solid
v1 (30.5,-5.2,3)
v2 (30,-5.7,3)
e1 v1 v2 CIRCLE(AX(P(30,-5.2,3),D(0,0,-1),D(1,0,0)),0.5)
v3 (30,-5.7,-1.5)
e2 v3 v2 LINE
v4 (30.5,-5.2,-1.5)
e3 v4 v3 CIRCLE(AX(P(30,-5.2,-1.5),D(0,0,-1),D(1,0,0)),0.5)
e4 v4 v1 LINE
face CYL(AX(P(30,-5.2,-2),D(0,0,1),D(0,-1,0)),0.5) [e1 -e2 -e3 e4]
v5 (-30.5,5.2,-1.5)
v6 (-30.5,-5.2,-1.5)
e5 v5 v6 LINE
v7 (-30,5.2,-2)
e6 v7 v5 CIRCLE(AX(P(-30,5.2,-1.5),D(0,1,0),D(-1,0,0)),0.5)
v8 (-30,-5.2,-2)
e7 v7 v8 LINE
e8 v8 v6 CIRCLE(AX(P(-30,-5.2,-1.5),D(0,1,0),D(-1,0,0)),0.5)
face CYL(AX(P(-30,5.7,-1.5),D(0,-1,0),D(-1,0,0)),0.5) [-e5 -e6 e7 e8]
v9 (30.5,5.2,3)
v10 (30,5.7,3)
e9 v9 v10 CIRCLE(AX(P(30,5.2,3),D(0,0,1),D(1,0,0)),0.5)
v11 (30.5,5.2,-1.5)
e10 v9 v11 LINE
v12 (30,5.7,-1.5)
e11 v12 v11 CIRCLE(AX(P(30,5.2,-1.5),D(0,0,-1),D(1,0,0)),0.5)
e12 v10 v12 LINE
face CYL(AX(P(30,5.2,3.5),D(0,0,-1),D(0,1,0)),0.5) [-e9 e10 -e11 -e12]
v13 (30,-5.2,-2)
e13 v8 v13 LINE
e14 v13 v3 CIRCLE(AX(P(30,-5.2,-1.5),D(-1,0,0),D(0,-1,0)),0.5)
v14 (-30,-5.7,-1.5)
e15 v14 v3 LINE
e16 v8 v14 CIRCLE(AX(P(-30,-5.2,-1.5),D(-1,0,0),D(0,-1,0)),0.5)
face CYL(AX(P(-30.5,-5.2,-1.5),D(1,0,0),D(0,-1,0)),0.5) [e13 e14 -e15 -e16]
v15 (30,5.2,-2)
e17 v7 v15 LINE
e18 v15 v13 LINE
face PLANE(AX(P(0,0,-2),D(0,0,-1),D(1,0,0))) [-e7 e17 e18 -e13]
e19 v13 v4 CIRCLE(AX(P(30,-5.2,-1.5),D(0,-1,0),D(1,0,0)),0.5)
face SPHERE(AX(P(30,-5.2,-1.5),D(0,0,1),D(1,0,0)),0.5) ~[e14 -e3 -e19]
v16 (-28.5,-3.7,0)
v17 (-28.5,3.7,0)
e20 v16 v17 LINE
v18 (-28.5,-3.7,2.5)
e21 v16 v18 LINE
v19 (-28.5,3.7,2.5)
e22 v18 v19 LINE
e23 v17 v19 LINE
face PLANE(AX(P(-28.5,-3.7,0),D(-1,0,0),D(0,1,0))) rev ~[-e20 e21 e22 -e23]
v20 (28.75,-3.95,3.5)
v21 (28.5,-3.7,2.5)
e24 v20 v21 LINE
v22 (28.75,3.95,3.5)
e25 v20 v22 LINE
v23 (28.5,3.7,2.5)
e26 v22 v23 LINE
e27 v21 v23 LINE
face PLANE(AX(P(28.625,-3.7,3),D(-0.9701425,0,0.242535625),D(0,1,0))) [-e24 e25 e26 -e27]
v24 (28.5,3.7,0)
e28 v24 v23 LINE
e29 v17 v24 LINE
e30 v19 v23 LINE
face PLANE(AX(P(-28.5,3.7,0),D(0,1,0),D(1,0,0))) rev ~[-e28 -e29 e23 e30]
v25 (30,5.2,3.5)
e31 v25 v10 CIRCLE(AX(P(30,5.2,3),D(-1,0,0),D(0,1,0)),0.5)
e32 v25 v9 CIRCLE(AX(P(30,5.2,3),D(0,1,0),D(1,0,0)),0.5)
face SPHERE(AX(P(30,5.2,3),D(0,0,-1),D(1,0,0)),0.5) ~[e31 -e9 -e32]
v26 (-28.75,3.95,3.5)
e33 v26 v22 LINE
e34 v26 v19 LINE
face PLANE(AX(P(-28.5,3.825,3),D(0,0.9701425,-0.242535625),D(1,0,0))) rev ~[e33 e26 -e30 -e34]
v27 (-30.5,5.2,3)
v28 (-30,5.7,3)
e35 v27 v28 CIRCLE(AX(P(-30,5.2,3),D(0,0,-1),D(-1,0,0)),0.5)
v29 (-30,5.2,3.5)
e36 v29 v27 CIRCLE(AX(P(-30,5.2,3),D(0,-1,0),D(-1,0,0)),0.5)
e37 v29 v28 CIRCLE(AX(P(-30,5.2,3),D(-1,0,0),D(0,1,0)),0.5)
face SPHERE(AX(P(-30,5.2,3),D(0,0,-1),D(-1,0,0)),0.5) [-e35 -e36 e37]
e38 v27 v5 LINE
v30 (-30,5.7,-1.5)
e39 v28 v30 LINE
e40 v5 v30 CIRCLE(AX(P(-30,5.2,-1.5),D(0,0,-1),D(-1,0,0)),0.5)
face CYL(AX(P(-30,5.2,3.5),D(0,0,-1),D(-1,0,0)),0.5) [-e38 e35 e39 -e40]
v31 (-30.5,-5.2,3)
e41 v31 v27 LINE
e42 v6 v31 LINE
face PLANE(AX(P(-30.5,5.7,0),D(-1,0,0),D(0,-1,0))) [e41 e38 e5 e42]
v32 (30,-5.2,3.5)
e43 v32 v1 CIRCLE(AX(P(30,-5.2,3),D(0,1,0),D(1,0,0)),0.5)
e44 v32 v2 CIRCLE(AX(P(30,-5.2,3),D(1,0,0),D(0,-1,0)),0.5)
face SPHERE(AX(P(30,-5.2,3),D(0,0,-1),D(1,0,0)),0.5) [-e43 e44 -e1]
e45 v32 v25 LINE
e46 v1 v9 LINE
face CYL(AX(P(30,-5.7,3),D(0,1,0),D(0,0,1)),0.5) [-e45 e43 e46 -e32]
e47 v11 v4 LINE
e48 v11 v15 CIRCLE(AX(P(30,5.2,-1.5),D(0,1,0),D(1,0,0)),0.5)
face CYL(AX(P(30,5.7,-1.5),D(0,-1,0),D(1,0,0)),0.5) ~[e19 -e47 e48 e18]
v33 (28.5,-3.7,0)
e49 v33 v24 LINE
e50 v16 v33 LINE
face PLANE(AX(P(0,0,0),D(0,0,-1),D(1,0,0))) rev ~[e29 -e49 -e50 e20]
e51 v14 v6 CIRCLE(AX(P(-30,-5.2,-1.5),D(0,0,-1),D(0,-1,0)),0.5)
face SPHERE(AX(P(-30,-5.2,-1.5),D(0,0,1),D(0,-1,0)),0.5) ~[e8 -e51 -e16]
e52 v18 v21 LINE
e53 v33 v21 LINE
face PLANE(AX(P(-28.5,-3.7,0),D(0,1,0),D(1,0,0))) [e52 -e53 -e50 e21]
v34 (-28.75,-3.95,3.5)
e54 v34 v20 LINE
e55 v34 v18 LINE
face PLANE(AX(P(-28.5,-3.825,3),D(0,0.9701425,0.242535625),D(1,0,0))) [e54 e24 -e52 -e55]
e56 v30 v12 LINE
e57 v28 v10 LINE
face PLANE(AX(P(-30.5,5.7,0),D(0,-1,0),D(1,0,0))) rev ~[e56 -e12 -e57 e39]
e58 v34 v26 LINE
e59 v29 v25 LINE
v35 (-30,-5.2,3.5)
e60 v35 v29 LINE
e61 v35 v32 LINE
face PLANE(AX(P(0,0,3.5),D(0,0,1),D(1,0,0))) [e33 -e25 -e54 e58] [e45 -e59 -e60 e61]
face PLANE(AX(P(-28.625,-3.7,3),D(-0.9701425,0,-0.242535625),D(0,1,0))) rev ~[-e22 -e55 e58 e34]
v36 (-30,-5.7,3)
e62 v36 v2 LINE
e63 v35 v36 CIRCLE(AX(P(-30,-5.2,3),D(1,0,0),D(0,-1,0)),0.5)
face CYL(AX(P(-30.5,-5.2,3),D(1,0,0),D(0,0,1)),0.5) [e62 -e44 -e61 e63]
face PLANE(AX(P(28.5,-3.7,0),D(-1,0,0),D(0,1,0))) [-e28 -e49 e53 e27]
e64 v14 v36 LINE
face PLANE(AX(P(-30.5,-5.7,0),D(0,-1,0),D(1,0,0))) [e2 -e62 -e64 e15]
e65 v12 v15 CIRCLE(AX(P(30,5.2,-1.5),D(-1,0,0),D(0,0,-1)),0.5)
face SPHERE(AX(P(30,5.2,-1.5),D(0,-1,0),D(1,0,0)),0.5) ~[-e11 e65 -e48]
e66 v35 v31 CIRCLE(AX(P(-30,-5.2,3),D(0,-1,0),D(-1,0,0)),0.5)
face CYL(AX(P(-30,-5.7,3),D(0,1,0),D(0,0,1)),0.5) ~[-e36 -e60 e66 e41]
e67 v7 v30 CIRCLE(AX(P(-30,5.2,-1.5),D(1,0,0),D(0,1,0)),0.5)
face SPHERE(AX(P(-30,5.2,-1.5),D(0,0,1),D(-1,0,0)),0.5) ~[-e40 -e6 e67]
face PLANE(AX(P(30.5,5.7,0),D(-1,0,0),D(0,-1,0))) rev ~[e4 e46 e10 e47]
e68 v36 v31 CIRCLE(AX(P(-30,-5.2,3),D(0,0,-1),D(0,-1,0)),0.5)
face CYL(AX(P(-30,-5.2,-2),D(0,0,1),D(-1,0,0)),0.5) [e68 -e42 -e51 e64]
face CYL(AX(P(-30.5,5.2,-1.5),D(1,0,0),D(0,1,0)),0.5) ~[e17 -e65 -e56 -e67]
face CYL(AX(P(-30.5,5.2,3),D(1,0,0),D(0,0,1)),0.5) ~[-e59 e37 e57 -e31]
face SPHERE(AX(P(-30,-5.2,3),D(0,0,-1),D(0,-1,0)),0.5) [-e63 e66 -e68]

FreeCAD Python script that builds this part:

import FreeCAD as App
import Part
import Sketcher

V = App.Vector


def edges_at(feature, points):
    """Names of the edges that pass closest to the given points."""
    edges = feature.Shape.Edges
    near = lambda p: min(range(len(edges)), key=lambda i: edges[i].distToShape(Part.Vertex(*p))[0])
    return sorted({f"Edge{near(p) + 1}" for p in points})

doc = App.newDocument("Part")
body = doc.addObject("PartDesign::Body", "Body")

# Sketch on XY plane
sketch1 = doc.addObject("Sketcher::SketchObject", "Sketch")
body.addObject(sketch1)
sketch1.AttachmentSupport = (doc.XY_Plane, [""])
sketch1.MapMode = "FlatFace"
sketch1.addGeometry(Part.LineSegment(V(-30.5, 5.7, 0), V(-30.5, -5.7, 0)), False)
sketch1.addGeometry(Part.LineSegment(V(-30.5, -5.7, 0), V(30.5, -5.7, 0)), False)
sketch1.addGeometry(Part.LineSegment(V(30.5, -5.7, 0), V(30.5, 5.7, 0)), False)
sketch1.addGeometry(Part.LineSegment(V(30.5, 5.7, 0), V(-30.5, 5.7, 0)), False)
sketch1.addGeometry(Part.LineSegment(V(28.5, -3.7, 0), V(-28.5, -3.7, 0)), False)
sketch1.addGeometry(Part.LineSegment(V(-28.5, -3.7, 0), V(-28.5, 3.7, 0)), False)
sketch1.addGeometry(Part.LineSegment(V(-28.5, 3.7, 0), V(28.5, 3.7, 0)), False)
sketch1.addGeometry(Part.LineSegment(V(28.5, 3.7, 0), V(28.5, -3.7, 0)), False)
sketch1.addConstraint(Sketcher.Constraint("Coincident", 0, 2, 1, 1))
sketch1.addConstraint(Sketcher.Constraint("Coincident", 1, 2, 2, 1))
sketch1.addConstraint(Sketcher.Constraint("Coincident", 2, 2, 3, 1))
sketch1.addConstraint(Sketcher.Constraint("Coincident", 3, 2, 0, 1))
sketch1.addConstraint(Sketcher.Constraint("Coincident", 4, 2, 5, 1))
sketch1.addConstraint(Sketcher.Constraint("Coincident", 5, 2, 6, 1))
sketch1.addConstraint(Sketcher.Constraint("Coincident", 6, 2, 7, 1))
sketch1.addConstraint(Sketcher.Constraint("Coincident", 7, 2, 4, 1))
sketch1.addConstraint(Sketcher.Constraint("Vertical", 0))
sketch1.addConstraint(Sketcher.Constraint("Horizontal", 1))
sketch1.addConstraint(Sketcher.Constraint("Vertical", 2))
sketch1.addConstraint(Sketcher.Constraint("Horizontal", 3))
sketch1.addConstraint(Sketcher.Constraint("Horizontal", 4))
sketch1.addConstraint(Sketcher.Constraint("Vertical", 5))
sketch1.addConstraint(Sketcher.Constraint("Horizontal", 6))
sketch1.addConstraint(Sketcher.Constraint("Vertical", 7))
sketch1.addConstraint(Sketcher.Constraint("Symmetric", 0, 2, 2, 2, -1, 1))
sketch1.addConstraint(Sketcher.Constraint("Symmetric", 4, 2, 6, 2, -1, 1))
sketch1.addConstraint(Sketcher.Constraint("DistanceX", 1, 1, 1, 2, 61.0))
sketch1.addConstraint(Sketcher.Constraint("DistanceX", 4, 2, 4, 1, 57.0))
sketch1.addConstraint(Sketcher.Constraint("DistanceY", 0, 2, 0, 1, 11.4))
sketch1.addConstraint(Sketcher.Constraint("DistanceY", 5, 1, 5, 2, 7.4))
pad1 = doc.addObject("PartDesign::Pad", "Pad")
body.addObject(pad1)
pad1.Profile = sketch1
pad1.Length = 3.5

# Sketch on XY plane
sketch2 = doc.addObject("Sketcher::SketchObject", "Sketch001")
body.addObject(sketch2)
sketch2.AttachmentSupport = (doc.XY_Plane, [""])
sketch2.MapMode = "FlatFace"
sketch2.addGeometry(Part.LineSegment(V(-30.5, -5.7, 0), V(-30.5, 5.7, 0)), False)
sketch2.addGeometry(Part.LineSegment(V(-30.5, 5.7, 0), V(30.5, 5.7, 0)), False)
sketch2.addGeometry(Part.LineSegment(V(30.5, 5.7, 0), V(30.5, -5.7, 0)), False)
sketch2.addGeometry(Part.LineSegment(V(30.5, -5.7, 0), V(-30.5, -5.7, 0)), False)
sketch2.addConstraint(Sketcher.Constraint("Coincident", 0, 2, 1, 1))
sketch2.addConstraint(Sketcher.Constraint("Coincident", 1, 2, 2, 1))
sketch2.addConstraint(Sketcher.Constraint("Coincident", 2, 2, 3, 1))
sketch2.addConstraint(Sketcher.Constraint("Coincident", 3, 2, 0, 1))
sketch2.addConstraint(Sketcher.Constraint("Vertical", 0))
sketch2.addConstraint(Sketcher.Constraint("Horizontal", 1))
sketch2.addConstraint(Sketcher.Constraint("Vertical", 2))
sketch2.addConstraint(Sketcher.Constraint("Horizontal", 3))
sketch2.addConstraint(Sketcher.Constraint("Symmetric", 0, 2, 2, 2, -1, 1))
sketch2.addConstraint(Sketcher.Constraint("DistanceX", 1, 1, 1, 2, 61.0))
sketch2.addConstraint(Sketcher.Constraint("DistanceY", 0, 1, 0, 2, 11.4))
pad2 = doc.addObject("PartDesign::Pad", "Pad001")
body.addObject(pad2)
pad2.Profile = sketch2
pad2.Length = 2
pad2.Reversed = True
doc.recompute()

chamfer = doc.addObject("PartDesign::Chamfer", "Chamfer")
body.addObject(chamfer)
chamfer.Base = (pad2, edges_at(pad2, [
    (0, 3.7, 3.5),
    (-28.5, 0, 3.5),
    (0, -3.7, 3.5),
    (28.5, 0, 3.5),
]))
chamfer.ChamferType = "Two distances"
chamfer.Size = 0.25
chamfer.Size2 = 1
doc.recompute()

fillet = doc.addObject("PartDesign::Fillet", "Fillet")
body.addObject(fillet)
fillet.Base = (chamfer, edges_at(chamfer, [
    (30.5, -5.7, 0.75),
    (30.5, 0, -2),
    (30.5, 5.7, 0.75),
    (30.5, 0, 3.5),
    (-30.5, -5.7, 0.75),
    (0, -5.7, -2),
    (0, -5.7, 3.5),
    (-30.5, 5.7, 0.75),
    (-30.5, 0, -2),
    (-30.5, 0, 3.5),
    (0, 5.7, -2),
    (0, 5.7, 3.5),
]))
fillet.Radius = 0.5

doc.recompute()
